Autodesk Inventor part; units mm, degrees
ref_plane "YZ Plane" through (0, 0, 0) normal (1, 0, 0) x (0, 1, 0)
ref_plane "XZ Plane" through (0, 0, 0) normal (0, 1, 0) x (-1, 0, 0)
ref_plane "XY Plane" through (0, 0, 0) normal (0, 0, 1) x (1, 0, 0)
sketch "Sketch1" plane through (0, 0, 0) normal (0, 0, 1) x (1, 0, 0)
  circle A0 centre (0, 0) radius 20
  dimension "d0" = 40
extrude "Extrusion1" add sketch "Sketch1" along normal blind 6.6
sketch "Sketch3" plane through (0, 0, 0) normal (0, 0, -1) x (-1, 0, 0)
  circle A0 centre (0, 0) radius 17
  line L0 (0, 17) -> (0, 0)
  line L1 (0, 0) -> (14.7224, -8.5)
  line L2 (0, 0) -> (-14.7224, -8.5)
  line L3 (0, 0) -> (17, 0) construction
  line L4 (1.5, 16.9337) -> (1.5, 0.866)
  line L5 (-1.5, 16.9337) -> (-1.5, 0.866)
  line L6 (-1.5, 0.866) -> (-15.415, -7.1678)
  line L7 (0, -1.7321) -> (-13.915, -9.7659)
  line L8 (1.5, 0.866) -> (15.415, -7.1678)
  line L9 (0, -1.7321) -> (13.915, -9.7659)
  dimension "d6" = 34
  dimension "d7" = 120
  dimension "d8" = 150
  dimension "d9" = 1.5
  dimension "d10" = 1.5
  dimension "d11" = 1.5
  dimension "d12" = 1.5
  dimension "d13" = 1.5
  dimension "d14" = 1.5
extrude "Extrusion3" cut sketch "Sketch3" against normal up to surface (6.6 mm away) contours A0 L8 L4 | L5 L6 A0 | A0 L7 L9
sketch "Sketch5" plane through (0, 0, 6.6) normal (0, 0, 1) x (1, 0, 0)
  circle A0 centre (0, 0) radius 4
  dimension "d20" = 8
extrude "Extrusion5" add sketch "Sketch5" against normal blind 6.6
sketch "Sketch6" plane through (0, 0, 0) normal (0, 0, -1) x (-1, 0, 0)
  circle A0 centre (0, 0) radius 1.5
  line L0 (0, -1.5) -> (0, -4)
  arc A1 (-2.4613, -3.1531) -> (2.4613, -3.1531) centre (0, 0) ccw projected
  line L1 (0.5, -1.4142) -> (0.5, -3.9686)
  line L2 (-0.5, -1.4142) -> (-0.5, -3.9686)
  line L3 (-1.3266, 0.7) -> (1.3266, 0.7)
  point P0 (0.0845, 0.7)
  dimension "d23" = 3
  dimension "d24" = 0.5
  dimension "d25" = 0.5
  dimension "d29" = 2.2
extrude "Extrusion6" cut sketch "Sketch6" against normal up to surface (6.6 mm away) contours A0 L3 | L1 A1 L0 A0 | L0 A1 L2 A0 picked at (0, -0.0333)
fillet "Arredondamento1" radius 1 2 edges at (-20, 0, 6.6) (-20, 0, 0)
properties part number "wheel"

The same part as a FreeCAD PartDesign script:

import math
import FreeCAD as App
import Part
import Sketcher
from FreeCAD import Vector
Q = App.Units.Quantity


def edges_at(feature, points):
    """Names of the edges that pass closest to the given points."""
    edges = feature.Shape.Edges
    near = lambda p: min(range(len(edges)), key=lambda i: edges[i].distToShape(Part.Vertex(*p))[0])
    return sorted({f"Edge{near(p) + 1}" for p in points})

doc = App.newDocument("Part")
body = doc.addObject("PartDesign::Body", "Body")

# Sketch on XY plane
sketch1 = body.newObject("Sketcher::SketchObject", "Sketch")
sketch1.AttachmentSupport = (doc.getObject("XY_Plane"), [""])
sketch1.MapMode = "FlatFace"
sketch1.addGeometry(Part.Circle(Vector(0, 0, 0), Vector(0, 0, 1), 20), False)
sketch1.addConstraint(Sketcher.Constraint("Coincident", 0, 3, -1, 1))
sketch1.addConstraint(Sketcher.Constraint("Diameter", 0, 40.0))
pad1 = body.newObject("PartDesign::Pad", "Pad")
pad1.Profile = sketch1
pad1.Length = 6.6

# Sketch on XY plane
sketch2 = body.newObject("Sketcher::SketchObject", "Sketch001")
sketch2.AttachmentSupport = (doc.getObject("XY_Plane"), [""])
sketch2.MapMode = "FlatFace"
sketch2.addGeometry(Part.ArcOfCircle(Part.Circle(Vector(0, 0, 0), Vector(0, 0, 1), 17), math.radians(95), math.radians(205)), False)
sketch2.addGeometry(Part.LineSegment(Vector(-2, 17, 0), Vector(-2, 1, 0)), False)
sketch2.addGeometry(Part.LineSegment(Vector(-2, 1, 0), Vector(-15, -7, 0)), False)
sketch2.addGeometry(Part.LineSegment(Vector(2, 1, 0), Vector(2, 17, 0)), False)
sketch2.addGeometry(Part.ArcOfCircle(Part.Circle(Vector(0, 0, 0), Vector(0, 0, 1), 17), math.radians(-25), math.radians(85)), False)
sketch2.addGeometry(Part.LineSegment(Vector(15, -7, 0), Vector(2, 1, 0)), False)
sketch2.addGeometry(Part.ArcOfCircle(Part.Circle(Vector(0, 0, 0), Vector(0, 0, 1), 17), math.radians(-145), math.radians(-35)), False)
sketch2.addGeometry(Part.LineSegment(Vector(-14, -10, 0), Vector(0, -2, 0)), False)
sketch2.addGeometry(Part.LineSegment(Vector(0, -2, 0), Vector(14, -10, 0)), False)
sketch2.addConstraint(Sketcher.Constraint("Coincident", 0, 1, 1, 1))
sketch2.addConstraint(Sketcher.Constraint("Coincident", 1, 2, 2, 1))
sketch2.addConstraint(Sketcher.Constraint("Coincident", 2, 2, 0, 2))
sketch2.addConstraint(Sketcher.Constraint("Coincident", 3, 2, 4, 2))
sketch2.addConstraint(Sketcher.Constraint("Coincident", 4, 1, 5, 1))
sketch2.addConstraint(Sketcher.Constraint("Coincident", 5, 2, 3, 1))
sketch2.addConstraint(Sketcher.Constraint("Coincident", 6, 1, 7, 1))
sketch2.addConstraint(Sketcher.Constraint("Coincident", 7, 2, 8, 1))
sketch2.addConstraint(Sketcher.Constraint("Coincident", 8, 2, 6, 2))
sketch2.addConstraint(Sketcher.Constraint("Vertical", 1))
sketch2.addConstraint(Sketcher.Constraint("Vertical", 3))
sketch2.addConstraint(Sketcher.Constraint("Coincident", 0, 3, -1, 1))
sketch2.addConstraint(Sketcher.Constraint("Coincident", 4, 3, -1, 1))
sketch2.addConstraint(Sketcher.Constraint("Coincident", 6, 3, -1, 1))
sketch2.addConstraint(Sketcher.Constraint("Equal", 0, 4))
sketch2.addConstraint(Sketcher.Constraint("Equal", 4, 6))
sketch2.addConstraint(Sketcher.Constraint("Symmetric", 1, 2, 5, 2, -2))
sketch2.addConstraint(Sketcher.Constraint("PointOnObject", 7, 2, -2))
sketch2.addConstraint(Sketcher.Constraint("Parallel", 2, 7))
sketch2.addConstraint(Sketcher.Constraint("Parallel", 5, 8))
sketch2.addConstraint(Sketcher.Constraint("Horizontal", 2, 2, 4, 1))
sketch2.addConstraint(Sketcher.Constraint("Equal", 5, 7))
sketch2.addConstraint(Sketcher.Constraint("Radius", 0, 17.0))
sketch2.addConstraint(Sketcher.Constraint("Angle", 2, Q("-150 deg")))
sketch2.addConstraint(Sketcher.Constraint("DistanceX", 0, 1, -1, 1, 1.5))
sketch2.addConstraint(Sketcher.Constraint("DistanceY", 1, 2, 1, 1, 16.0677))
pocket1 = body.newObject("PartDesign::Pocket", "Pocket")
pocket1.Profile = sketch2
pocket1.Length = 6.6
pocket1.Reversed = True

# Sketch on XY plane
sketch3 = body.newObject("Sketcher::SketchObject", "Sketch002")
sketch3.AttachmentSupport = (doc.getObject("XY_Plane"), [""])
sketch3.MapMode = "FlatFace"
sketch3.AttachmentOffset = App.Placement(Vector(0, 0, 6.6), App.Rotation())
sketch3.addGeometry(Part.Circle(Vector(0, 0, 0), Vector(0, 0, 1), 4), False)
sketch3.addConstraint(Sketcher.Constraint("Coincident", 0, 3, -1, 1))
sketch3.addConstraint(Sketcher.Constraint("Diameter", 0, 8.0))
pad2 = body.newObject("PartDesign::Pad", "Pad001")
pad2.Profile = sketch3
pad2.Length = 6.6
pad2.Reversed = True

# Sketch on XY plane
sketch4 = body.newObject("Sketcher::SketchObject", "Sketch003")
sketch4.AttachmentSupport = (doc.getObject("XY_Plane"), [""])
sketch4.MapMode = "FlatFace"
sketch4.addGeometry(Part.ArcOfCircle(Part.Circle(Vector(0, 0, 0), Vector(0, 0, 1), 1.5), math.radians(152), math.radians(251)), False)
sketch4.addGeometry(Part.LineSegment(Vector(-1.3, 0.7, 0), Vector(1.3, 0.7, 0)), False)
sketch4.addGeometry(Part.ArcOfCircle(Part.Circle(Vector(0, 0, 0), Vector(0, 0, 1), 1.5), math.radians(-71), math.radians(28)), False)
sketch4.addGeometry(Part.LineSegment(Vector(0.5, -1.4, 0), Vector(0.5, -4, 0)), False)
sketch4.addGeometry(Part.ArcOfCircle(Part.Circle(Vector(0, 0, 0), Vector(0, 0, 1), 4), math.radians(-97.18), math.radians(-82.82)), False)
sketch4.addGeometry(Part.LineSegment(Vector(-0.5, -4, 0), Vector(-0.5, -1.4, 0)), False)
sketch4.addConstraint(Sketcher.Constraint("Coincident", 0, 1, 1, 1))
sketch4.addConstraint(Sketcher.Constraint("Coincident", 1, 2, 2, 2))
sketch4.addConstraint(Sketcher.Constraint("Coincident", 2, 1, 3, 1))
sketch4.addConstraint(Sketcher.Constraint("Coincident", 3, 2, 4, 2))
sketch4.addConstraint(Sketcher.Constraint("Coincident", 4, 1, 5, 1))
sketch4.addConstraint(Sketcher.Constraint("Coincident", 5, 2, 0, 2))
sketch4.addConstraint(Sketcher.Constraint("Horizontal", 1))
sketch4.addConstraint(Sketcher.Constraint("Vertical", 3))
sketch4.addConstraint(Sketcher.Constraint("Vertical", 5))
sketch4.addConstraint(Sketcher.Constraint("Coincident", 0, 3, -1, 1))
sketch4.addConstraint(Sketcher.Constraint("Coincident", 2, 3, -1, 1))
sketch4.addConstraint(Sketcher.Constraint("Coincident", 4, 3, -1, 1))
sketch4.addConstraint(Sketcher.Constraint("Equal", 0, 2))
sketch4.addConstraint(Sketcher.Constraint("Horizontal", 3, 2, 4, 1))
sketch4.addConstraint(Sketcher.Constraint("Radius", 0, 1.5))
sketch4.addConstraint(Sketcher.Constraint("Radius", 4, 4.0))
sketch4.addConstraint(Sketcher.Constraint("DistanceX", -1, 1, 2, 1, 0.5))
sketch4.addConstraint(Sketcher.Constraint("DistanceY", -1, 1, 0, 1, 0.7))
pocket2 = body.newObject("PartDesign::Pocket", "Pocket001")
pocket2.Profile = sketch4
pocket2.Length = 6.6
pocket2.Reversed = True
doc.recompute()

fillet = body.newObject("PartDesign::Fillet", "Fillet")
fillet.Base = (pocket2, edges_at(pocket2, [(-20, 0, 6.6), (-20, 0, 0)]))
fillet.Radius = 1

doc.recompute()
